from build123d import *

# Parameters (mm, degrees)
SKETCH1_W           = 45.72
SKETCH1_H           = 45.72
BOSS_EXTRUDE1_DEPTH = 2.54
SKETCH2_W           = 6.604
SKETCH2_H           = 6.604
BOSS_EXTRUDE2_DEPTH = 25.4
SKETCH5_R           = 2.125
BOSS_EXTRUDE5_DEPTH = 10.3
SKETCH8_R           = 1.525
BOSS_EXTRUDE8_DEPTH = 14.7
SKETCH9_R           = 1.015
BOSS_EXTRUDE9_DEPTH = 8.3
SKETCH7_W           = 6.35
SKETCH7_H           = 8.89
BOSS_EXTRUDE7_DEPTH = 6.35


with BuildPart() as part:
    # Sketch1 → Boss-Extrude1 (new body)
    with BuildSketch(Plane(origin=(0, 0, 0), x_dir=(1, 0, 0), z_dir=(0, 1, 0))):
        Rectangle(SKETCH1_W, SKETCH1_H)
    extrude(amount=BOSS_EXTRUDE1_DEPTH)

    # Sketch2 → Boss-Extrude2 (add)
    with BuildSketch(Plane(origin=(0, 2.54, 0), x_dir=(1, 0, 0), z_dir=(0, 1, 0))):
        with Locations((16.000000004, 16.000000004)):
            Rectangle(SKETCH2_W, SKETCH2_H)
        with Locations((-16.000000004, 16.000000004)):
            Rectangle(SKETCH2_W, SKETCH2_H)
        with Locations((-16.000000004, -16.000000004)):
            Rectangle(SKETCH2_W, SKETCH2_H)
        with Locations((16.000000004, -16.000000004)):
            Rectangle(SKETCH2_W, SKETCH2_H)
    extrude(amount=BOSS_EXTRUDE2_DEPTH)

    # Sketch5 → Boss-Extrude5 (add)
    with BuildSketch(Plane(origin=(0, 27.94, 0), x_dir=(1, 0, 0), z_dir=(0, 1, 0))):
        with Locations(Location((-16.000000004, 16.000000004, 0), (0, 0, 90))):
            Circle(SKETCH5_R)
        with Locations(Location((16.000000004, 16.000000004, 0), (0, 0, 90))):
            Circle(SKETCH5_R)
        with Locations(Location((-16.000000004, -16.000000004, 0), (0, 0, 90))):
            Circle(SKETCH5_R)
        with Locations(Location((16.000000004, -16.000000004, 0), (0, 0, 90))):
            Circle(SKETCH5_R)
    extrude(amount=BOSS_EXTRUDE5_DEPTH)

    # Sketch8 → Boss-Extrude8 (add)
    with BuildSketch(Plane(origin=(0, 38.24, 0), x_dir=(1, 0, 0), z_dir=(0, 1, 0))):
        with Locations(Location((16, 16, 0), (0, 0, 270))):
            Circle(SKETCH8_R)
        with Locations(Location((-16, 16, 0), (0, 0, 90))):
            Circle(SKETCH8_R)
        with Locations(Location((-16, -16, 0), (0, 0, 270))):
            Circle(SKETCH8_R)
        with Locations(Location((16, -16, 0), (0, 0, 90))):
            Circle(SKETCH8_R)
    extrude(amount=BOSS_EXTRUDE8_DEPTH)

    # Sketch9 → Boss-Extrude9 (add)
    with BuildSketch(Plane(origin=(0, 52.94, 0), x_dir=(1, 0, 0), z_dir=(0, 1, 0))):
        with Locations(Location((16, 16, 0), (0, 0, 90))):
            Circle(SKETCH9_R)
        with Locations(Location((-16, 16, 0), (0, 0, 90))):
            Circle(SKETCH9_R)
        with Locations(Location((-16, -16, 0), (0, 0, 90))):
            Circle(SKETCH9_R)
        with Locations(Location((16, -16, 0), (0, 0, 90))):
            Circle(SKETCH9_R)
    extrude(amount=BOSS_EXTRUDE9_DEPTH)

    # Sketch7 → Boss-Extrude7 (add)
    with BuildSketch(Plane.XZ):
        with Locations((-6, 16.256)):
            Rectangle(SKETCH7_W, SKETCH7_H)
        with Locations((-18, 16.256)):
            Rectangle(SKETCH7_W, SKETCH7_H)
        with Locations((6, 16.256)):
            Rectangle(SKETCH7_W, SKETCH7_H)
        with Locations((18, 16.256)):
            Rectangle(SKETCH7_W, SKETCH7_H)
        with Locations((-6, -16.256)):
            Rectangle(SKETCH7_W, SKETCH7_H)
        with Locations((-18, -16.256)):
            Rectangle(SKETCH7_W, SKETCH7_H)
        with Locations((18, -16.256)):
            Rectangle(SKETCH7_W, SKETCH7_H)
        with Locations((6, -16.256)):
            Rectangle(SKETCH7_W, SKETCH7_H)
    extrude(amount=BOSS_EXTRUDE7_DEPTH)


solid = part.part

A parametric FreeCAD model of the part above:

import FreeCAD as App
import Part
import Sketcher

V = App.Vector
Q = App.Units.Quantity

doc = App.newDocument("Part")
body = doc.addObject("PartDesign::Body", "Body")

sketch1 = body.newObject("Sketcher::SketchObject", "Sketch")
sketch1.AttachmentSupport = (doc.getObject("XZ_Plane"), [""])
sketch1.MapMode = "FlatFace"
sketch1.addGeometry([
    Part.LineSegment(V(-22.86, -22.86, 0), V(-22.86, 22.86, 0)),
    Part.LineSegment(V(-22.86, 22.86, 0), V(22.86, 22.86, 0)),
    Part.LineSegment(V(22.86, 22.86, 0), V(22.86, -22.86, 0)),
    Part.LineSegment(V(22.86, -22.86, 0), V(-22.86, -22.86, 0)),
], False)
sketch1.addConstraint([
    Sketcher.Constraint("Coincident", 0, 2, 1, 1),
    Sketcher.Constraint("Coincident", 1, 2, 2, 1),
    Sketcher.Constraint("Coincident", 2, 2, 3, 1),
    Sketcher.Constraint("Coincident", 3, 2, 0, 1),
    Sketcher.Constraint("Vertical", 0),
    Sketcher.Constraint("Horizontal", 1),
    Sketcher.Constraint("Vertical", 2),
    Sketcher.Constraint("Horizontal", 3),
    Sketcher.Constraint("Symmetric", 0, 2, 2, 2, -1, 1),
    Sketcher.Constraint("Equal", 3, 0),
    Sketcher.Constraint("DistanceX", 1, 1, 1, 2, Q("1.8 in")),
])
pad1 = body.newObject("PartDesign::Pad", "Pad")
pad1.Profile = sketch1
pad1.Length = Q("0.1 in")
pad1.Reversed = True

sketch2 = body.newObject("Sketcher::SketchObject", "Sketch001")
sketch2.AttachmentSupport = (doc.getObject("XZ_Plane"), [""])
sketch2.MapMode = "FlatFace"
sketch2.AttachmentOffset = App.Placement(V(0, 0, -0.1 * 25.4), App.Rotation())
sketch2.addGeometry([
    Part.LineSegment(V(12.698, -19.302, 0), V(12.698, -12.698, 0)),
    Part.LineSegment(V(12.698, -12.698, 0), V(19.302, -12.698, 0)),
    Part.LineSegment(V(19.302, -12.698, 0), V(19.302, -19.302, 0)),
    Part.LineSegment(V(19.302, -19.302, 0), V(12.698, -19.302, 0)),
    Part.LineSegment(V(-19.302, -19.302, 0), V(-19.302, -12.698, 0)),
    Part.LineSegment(V(-19.302, -12.698, 0), V(-12.698, -12.698, 0)),
    Part.LineSegment(V(-12.698, -12.698, 0), V(-12.698, -19.302, 0)),
    Part.LineSegment(V(-12.698, -19.302, 0), V(-19.302, -19.302, 0)),
    Part.LineSegment(V(-19.302, 12.698, 0), V(-19.302, 19.302, 0)),
    Part.LineSegment(V(-19.302, 19.302, 0), V(-12.698, 19.302, 0)),
    Part.LineSegment(V(-12.698, 19.302, 0), V(-12.698, 12.698, 0)),
    Part.LineSegment(V(-12.698, 12.698, 0), V(-19.302, 12.698, 0)),
    Part.LineSegment(V(12.698, 12.698, 0), V(12.698, 19.302, 0)),
    Part.LineSegment(V(12.698, 19.302, 0), V(19.302, 19.302, 0)),
    Part.LineSegment(V(19.302, 19.302, 0), V(19.302, 12.698, 0)),
    Part.LineSegment(V(19.302, 12.698, 0), V(12.698, 12.698, 0)),
], False)
sketch2.addConstraint([
    Sketcher.Constraint("Coincident", 0, 2, 1, 1),
    Sketcher.Constraint("Coincident", 1, 2, 2, 1),
    Sketcher.Constraint("Coincident", 2, 2, 3, 1),
    Sketcher.Constraint("Coincident", 3, 2, 0, 1),
    Sketcher.Constraint("Coincident", 4, 2, 5, 1),
    Sketcher.Constraint("Coincident", 5, 2, 6, 1),
    Sketcher.Constraint("Coincident", 6, 2, 7, 1),
    Sketcher.Constraint("Coincident", 7, 2, 4, 1),
    Sketcher.Constraint("Coincident", 8, 2, 9, 1),
    Sketcher.Constraint("Coincident", 9, 2, 10, 1),
    Sketcher.Constraint("Coincident", 10, 2, 11, 1),
    Sketcher.Constraint("Coincident", 11, 2, 8, 1),
    Sketcher.Constraint("Coincident", 12, 2, 13, 1),
    Sketcher.Constraint("Coincident", 13, 2, 14, 1),
    Sketcher.Constraint("Coincident", 14, 2, 15, 1),
    Sketcher.Constraint("Coincident", 15, 2, 12, 1),
    Sketcher.Constraint("Vertical", 0),
    Sketcher.Constraint("Horizontal", 1),
    Sketcher.Constraint("Vertical", 2),
    Sketcher.Constraint("Horizontal", 3),
    Sketcher.Constraint("Vertical", 4),
    Sketcher.Constraint("Horizontal", 5),
    Sketcher.Constraint("Vertical", 6),
    Sketcher.Constraint("Horizontal", 7),
    Sketcher.Constraint("Vertical", 8),
    Sketcher.Constraint("Horizontal", 9),
    Sketcher.Constraint("Vertical", 10),
    Sketcher.Constraint("Horizontal", 11),
    Sketcher.Constraint("Vertical", 12),
    Sketcher.Constraint("Horizontal", 13),
    Sketcher.Constraint("Vertical", 14),
    Sketcher.Constraint("Horizontal", 15),
    Sketcher.Constraint("Symmetric", 2, 2, 8, 2, -1, 1),
    Sketcher.Constraint("Symmetric", 0, 2, 10, 2, -1, 1),
    Sketcher.Constraint("Symmetric", 6, 2, 12, 2, -1, 1),
    Sketcher.Constraint("Symmetric", 4, 2, 14, 2, -1, 1),
    Sketcher.Constraint("Symmetric", 1, 2, 4, 2, -2),
    Sketcher.Constraint("Symmetric", 3, 2, 6, 2, -2),
    Sketcher.Constraint("Equal", 15, 0),
    Sketcher.Constraint("DistanceX", 1, 1, 1, 2, Q("0.26 in")),
    Sketcher.Constraint("DistanceX", -1, 1, 0, 2, Q("12.698 mm")),
    Sketcher.Constraint("DistanceY", 0, 2, -1, 1, Q("12.698 mm")),
])
pad2 = body.newObject("PartDesign::Pad", "Pad001")
pad2.Profile = sketch2
pad2.Length = Q("1 in")
pad2.Reversed = True

sketch3 = body.newObject("Sketcher::SketchObject", "Sketch002")
sketch3.AttachmentSupport = (doc.getObject("XZ_Plane"), [""])
sketch3.MapMode = "FlatFace"
sketch3.AttachmentOffset = App.Placement(V(0, 0, -1.1 * 25.4), App.Rotation())
sketch3.addGeometry([
    Part.Circle(V(-16, -16, 0), V(0, 0, 1), 2.125),
    Part.Circle(V(16, -16, 0), V(0, 0, 1), 2.125),
    Part.Circle(V(-16, 16, 0), V(0, 0, 1), 2.125),
    Part.Circle(V(16, 16, 0), V(0, 0, 1), 2.125),
], False)
sketch3.addConstraint([
    Sketcher.Constraint("Equal", 0, 1),
    Sketcher.Constraint("Equal", 1, 2),
    Sketcher.Constraint("Equal", 2, 3),
    Sketcher.Constraint("Symmetric", 1, 3, 2, 3, -1, 1),
    Sketcher.Constraint("Symmetric", 0, 3, 3, 3, -1, 1),
    Sketcher.Constraint("Symmetric", 0, 3, 1, 3, -2),
    Sketcher.Constraint("Diameter", 0, Q("4.25 mm")),
    Sketcher.Constraint("DistanceX", 0, 3, -1, 1, Q("16 mm")),
    Sketcher.Constraint("DistanceY", 0, 3, -1, 1, Q("16 mm")),
])
pad3 = body.newObject("PartDesign::Pad", "Pad002")
pad3.Profile = sketch3
pad3.Length = 10.3
pad3.Reversed = True

sketch4 = body.newObject("Sketcher::SketchObject", "Sketch003")
sketch4.AttachmentSupport = (doc.getObject("XZ_Plane"), [""])
sketch4.MapMode = "FlatFace"
sketch4.AttachmentOffset = App.Placement(V(0, 0, -38.24), App.Rotation())
sketch4.addGeometry([
    Part.Circle(V(16, -16, 0), V(0, 0, 1), 1.525),
    Part.Circle(V(-16, -16, 0), V(0, 0, 1), 1.525),
    Part.Circle(V(-16, 16, 0), V(0, 0, 1), 1.525),
    Part.Circle(V(16, 16, 0), V(0, 0, 1), 1.525),
], False)
sketch4.addConstraint([
    Sketcher.Constraint("Equal", 0, 1),
    Sketcher.Constraint("Equal", 1, 2),
    Sketcher.Constraint("Equal", 2, 3),
    Sketcher.Constraint("Symmetric", 0, 3, 2, 3, -1, 1),
    Sketcher.Constraint("Symmetric", 1, 3, 3, 3, -1, 1),
    Sketcher.Constraint("Symmetric", 0, 3, 1, 3, -2),
    Sketcher.Constraint("Diameter", 0, Q("3.05 mm")),
    Sketcher.Constraint("DistanceX", -1, 1, 0, 3, Q("16 mm")),
    Sketcher.Constraint("DistanceY", 0, 3, -1, 1, Q("16 mm")),
])
pad4 = body.newObject("PartDesign::Pad", "Pad003")
pad4.Profile = sketch4
pad4.Length = 14.7
pad4.Reversed = True

sketch5 = body.newObject("Sketcher::SketchObject", "Sketch004")
sketch5.AttachmentSupport = (doc.getObject("XZ_Plane"), [""])
sketch5.MapMode = "FlatFace"
sketch5.AttachmentOffset = App.Placement(V(0, 0, -52.94), App.Rotation())
sketch5.addGeometry([
    Part.Circle(V(16, -16, 0), V(0, 0, 1), 1.015),
    Part.Circle(V(-16, -16, 0), V(0, 0, 1), 1.015),
    Part.Circle(V(-16, 16, 0), V(0, 0, 1), 1.015),
    Part.Circle(V(16, 16, 0), V(0, 0, 1), 1.015),
], False)
sketch5.addConstraint([
    Sketcher.Constraint("Equal", 0, 1),
    Sketcher.Constraint("Equal", 1, 2),
    Sketcher.Constraint("Equal", 2, 3),
    Sketcher.Constraint("Symmetric", 0, 3, 2, 3, -1, 1),
    Sketcher.Constraint("Symmetric", 1, 3, 3, 3, -1, 1),
    Sketcher.Constraint("Symmetric", 0, 3, 1, 3, -2),
    Sketcher.Constraint("Diameter", 0, Q("2.03 mm")),
    Sketcher.Constraint("DistanceX", -1, 1, 0, 3, Q("16 mm")),
    Sketcher.Constraint("DistanceY", 0, 3, -1, 1, Q("16 mm")),
])
pad5 = body.newObject("PartDesign::Pad", "Pad004")
pad5.Profile = sketch5
pad5.Length = 8.3
pad5.Reversed = True

sketch6 = body.newObject("Sketcher::SketchObject", "Sketch005")
sketch6.AttachmentSupport = (doc.getObject("XZ_Plane"), [""])
sketch6.MapMode = "FlatFace"
sketch6.addGeometry([
    Part.LineSegment(V(-9.175, 20.701, 0), V(-9.175, 11.811, 0)),
    Part.LineSegment(V(-9.175, 11.811, 0), V(-2.825, 11.811, 0)),
    Part.LineSegment(V(-2.825, 11.811, 0), V(-2.825, 20.701, 0)),
    Part.LineSegment(V(-2.825, 20.701, 0), V(-9.175, 20.701, 0)),
    Part.LineSegment(V(-21.175, 20.701, 0), V(-21.175, 11.811, 0)),
    Part.LineSegment(V(-21.175, 11.811, 0), V(-14.825, 11.811, 0)),
    Part.LineSegment(V(-14.825, 11.811, 0), V(-14.825, 20.701, 0)),
    Part.LineSegment(V(-14.825, 20.701, 0), V(-21.175, 20.701, 0)),
    Part.LineSegment(V(2.825, 20.701, 0), V(2.825, 11.811, 0)),
    Part.LineSegment(V(2.825, 11.811, 0), V(9.175, 11.811, 0)),
    Part.LineSegment(V(9.175, 11.811, 0), V(9.175, 20.701, 0)),
    Part.LineSegment(V(9.175, 20.701, 0), V(2.825, 20.701, 0)),
    Part.LineSegment(V(14.825, 20.701, 0), V(14.825, 11.811, 0)),
    Part.LineSegment(V(14.825, 11.811, 0), V(21.175, 11.811, 0)),
    Part.LineSegment(V(21.175, 11.811, 0), V(21.175, 20.701, 0)),
    Part.LineSegment(V(21.175, 20.701, 0), V(14.825, 20.701, 0)),
    Part.LineSegment(V(-9.175, -11.811, 0), V(-9.175, -20.701, 0)),
    Part.LineSegment(V(-9.175, -20.701, 0), V(-2.825, -20.701, 0)),
    Part.LineSegment(V(-2.825, -20.701, 0), V(-2.825, -11.811, 0)),
    Part.LineSegment(V(-2.825, -11.811, 0), V(-9.175, -11.811, 0)),
    Part.LineSegment(V(-21.175, -11.811, 0), V(-21.175, -20.701, 0)),
    Part.LineSegment(V(-21.175, -20.701, 0), V(-14.825, -20.701, 0)),
    Part.LineSegment(V(-14.825, -20.701, 0), V(-14.825, -11.811, 0)),
    Part.LineSegment(V(-14.825, -11.811, 0), V(-21.175, -11.811, 0)),
    Part.LineSegment(V(14.825, -11.811, 0), V(14.825, -20.701, 0)),
    Part.LineSegment(V(14.825, -20.701, 0), V(21.175, -20.701, 0)),
    Part.LineSegment(V(21.175, -20.701, 0), V(21.175, -11.811, 0)),
    Part.LineSegment(V(21.175, -11.811, 0), V(14.825, -11.811, 0)),
    Part.LineSegment(V(2.825, -11.811, 0), V(2.825, -20.701, 0)),
    Part.LineSegment(V(2.825, -20.701, 0), V(9.175, -20.701, 0)),
    Part.LineSegment(V(9.175, -20.701, 0), V(9.175, -11.811, 0)),
    Part.LineSegment(V(9.175, -11.811, 0), V(2.825, -11.811, 0)),
], False)
sketch6.addConstraint([
    Sketcher.Constraint("Coincident", 0, 2, 1, 1),
    Sketcher.Constraint("Coincident", 1, 2, 2, 1),
    Sketcher.Constraint("Coincident", 2, 2, 3, 1),
    Sketcher.Constraint("Coincident", 3, 2, 0, 1),
    Sketcher.Constraint("Coincident", 4, 2, 5, 1),
    Sketcher.Constraint("Coincident", 5, 2, 6, 1),
    Sketcher.Constraint("Coincident", 6, 2, 7, 1),
    Sketcher.Constraint("Coincident", 7, 2, 4, 1),
    Sketcher.Constraint("Coincident", 8, 2, 9, 1),
    Sketcher.Constraint("Coincident", 9, 2, 10, 1),
    Sketcher.Constraint("Coincident", 10, 2, 11, 1),
    Sketcher.Constraint("Coincident", 11, 2, 8, 1),
    Sketcher.Constraint("Coincident", 12, 2, 13, 1),
    Sketcher.Constraint("Coincident", 13, 2, 14, 1),
    Sketcher.Constraint("Coincident", 14, 2, 15, 1),
    Sketcher.Constraint("Coincident", 15, 2, 12, 1),
    Sketcher.Constraint("Coincident", 16, 2, 17, 1),
    Sketcher.Constraint("Coincident", 17, 2, 18, 1),
    Sketcher.Constraint("Coincident", 18, 2, 19, 1),
    Sketcher.Constraint("Coincident", 19, 2, 16, 1),
    Sketcher.Constraint("Coincident", 20, 2, 21, 1),
    Sketcher.Constraint("Coincident", 21, 2, 22, 1),
    Sketcher.Constraint("Coincident", 22, 2, 23, 1),
    Sketcher.Constraint("Coincident", 23, 2, 20, 1),
    Sketcher.Constraint("Coincident", 24, 2, 25, 1),
    Sketcher.Constraint("Coincident", 25, 2, 26, 1),
    Sketcher.Constraint("Coincident", 26, 2, 27, 1),
    Sketcher.Constraint("Coincident", 27, 2, 24, 1),
    Sketcher.Constraint("Coincident", 28, 2, 29, 1),
    Sketcher.Constraint("Coincident", 29, 2, 30, 1),
    Sketcher.Constraint("Coincident", 30, 2, 31, 1),
    Sketcher.Constraint("Coincident", 31, 2, 28, 1),
    Sketcher.Constraint("Vertical", 0),
    Sketcher.Constraint("Horizontal", 1),
    Sketcher.Constraint("Vertical", 2),
    Sketcher.Constraint("Horizontal", 3),
    Sketcher.Constraint("Vertical", 4),
    Sketcher.Constraint("Horizontal", 5),
    Sketcher.Constraint("Vertical", 6),
    Sketcher.Constraint("Horizontal", 7),
    Sketcher.Constraint("Vertical", 8),
    Sketcher.Constraint("Horizontal", 9),
    Sketcher.Constraint("Vertical", 10),
    Sketcher.Constraint("Horizontal", 11),
    Sketcher.Constraint("Vertical", 12),
    Sketcher.Constraint("Horizontal", 13),
    Sketcher.Constraint("Vertical", 14),
    Sketcher.Constraint("Horizontal", 15),
    Sketcher.Constraint("Vertical", 16),
    Sketcher.Constraint("Horizontal", 17),
    Sketcher.Constraint("Vertical", 18),
    Sketcher.Constraint("Horizontal", 19),
    Sketcher.Constraint("Vertical", 20),
    Sketcher.Constraint("Horizontal", 21),
    Sketcher.Constraint("Vertical", 22),
    Sketcher.Constraint("Horizontal", 23),
    Sketcher.Constraint("Vertical", 24),
    Sketcher.Constraint("Horizontal", 25),
    Sketcher.Constraint("Vertical", 26),
    Sketcher.Constraint("Horizontal", 27),
    Sketcher.Constraint("Vertical", 28),
    Sketcher.Constraint("Horizontal", 29),
    Sketcher.Constraint("Vertical", 30),
    Sketcher.Constraint("Horizontal", 31),
    Sketcher.Constraint("Symmetric", 10, 2, 16, 2, -1, 1),
    Sketcher.Constraint("Symmetric", 8, 2, 18, 2, -1, 1),
    Sketcher.Constraint("Symmetric", 14, 2, 20, 2, -1, 1),
    Sketcher.Constraint("Symmetric", 12, 2, 22, 2, -1, 1),
    Sketcher.Constraint("Symmetric", 6, 2, 24, 2, -1, 1),
    Sketcher.Constraint("Symmetric", 4, 2, 26, 2, -1, 1),
    Sketcher.Constraint("Symmetric", 2, 2, 28, 2, -1, 1),
    Sketcher.Constraint("Symmetric", 0, 2, 30, 2, -1, 1),
    Sketcher.Constraint("Symmetric", 1, 2, 8, 2, -2),
    Sketcher.Constraint("Symmetric", 3, 2, 10, 2, -2),
    Sketcher.Constraint("Symmetric", 5, 2, 12, 2, -2),
    Sketcher.Constraint("Symmetric", 7, 2, 14, 2, -2),
    Sketcher.Constraint("Horizontal", 1, 2, 4, 2),
    Sketcher.Constraint("Horizontal", 3, 2, 6, 2),
    Sketcher.Constraint("Equal", 3, 5),
    Sketcher.Constraint("DistanceX", 1, 1, 1, 2, Q("0.25 in")),
    Sketcher.Constraint("DistanceY", 0, 2, 0, 1, Q("0.35 in")),
    Sketcher.Constraint("DistanceY", 16, 2, 0, 2, Q("1.28 in")),
    Sketcher.Constraint("DistanceX", 0, 2, -1, 1, Q("9.175 mm")),
    Sketcher.Constraint("DistanceX", 4, 2, -1, 1, Q("21.175 mm")),
])
pad6 = body.newObject("PartDesign::Pad", "Pad005")
pad6.Profile = sketch6
pad6.Length = Q("0.25 in")

doc.recompute()
